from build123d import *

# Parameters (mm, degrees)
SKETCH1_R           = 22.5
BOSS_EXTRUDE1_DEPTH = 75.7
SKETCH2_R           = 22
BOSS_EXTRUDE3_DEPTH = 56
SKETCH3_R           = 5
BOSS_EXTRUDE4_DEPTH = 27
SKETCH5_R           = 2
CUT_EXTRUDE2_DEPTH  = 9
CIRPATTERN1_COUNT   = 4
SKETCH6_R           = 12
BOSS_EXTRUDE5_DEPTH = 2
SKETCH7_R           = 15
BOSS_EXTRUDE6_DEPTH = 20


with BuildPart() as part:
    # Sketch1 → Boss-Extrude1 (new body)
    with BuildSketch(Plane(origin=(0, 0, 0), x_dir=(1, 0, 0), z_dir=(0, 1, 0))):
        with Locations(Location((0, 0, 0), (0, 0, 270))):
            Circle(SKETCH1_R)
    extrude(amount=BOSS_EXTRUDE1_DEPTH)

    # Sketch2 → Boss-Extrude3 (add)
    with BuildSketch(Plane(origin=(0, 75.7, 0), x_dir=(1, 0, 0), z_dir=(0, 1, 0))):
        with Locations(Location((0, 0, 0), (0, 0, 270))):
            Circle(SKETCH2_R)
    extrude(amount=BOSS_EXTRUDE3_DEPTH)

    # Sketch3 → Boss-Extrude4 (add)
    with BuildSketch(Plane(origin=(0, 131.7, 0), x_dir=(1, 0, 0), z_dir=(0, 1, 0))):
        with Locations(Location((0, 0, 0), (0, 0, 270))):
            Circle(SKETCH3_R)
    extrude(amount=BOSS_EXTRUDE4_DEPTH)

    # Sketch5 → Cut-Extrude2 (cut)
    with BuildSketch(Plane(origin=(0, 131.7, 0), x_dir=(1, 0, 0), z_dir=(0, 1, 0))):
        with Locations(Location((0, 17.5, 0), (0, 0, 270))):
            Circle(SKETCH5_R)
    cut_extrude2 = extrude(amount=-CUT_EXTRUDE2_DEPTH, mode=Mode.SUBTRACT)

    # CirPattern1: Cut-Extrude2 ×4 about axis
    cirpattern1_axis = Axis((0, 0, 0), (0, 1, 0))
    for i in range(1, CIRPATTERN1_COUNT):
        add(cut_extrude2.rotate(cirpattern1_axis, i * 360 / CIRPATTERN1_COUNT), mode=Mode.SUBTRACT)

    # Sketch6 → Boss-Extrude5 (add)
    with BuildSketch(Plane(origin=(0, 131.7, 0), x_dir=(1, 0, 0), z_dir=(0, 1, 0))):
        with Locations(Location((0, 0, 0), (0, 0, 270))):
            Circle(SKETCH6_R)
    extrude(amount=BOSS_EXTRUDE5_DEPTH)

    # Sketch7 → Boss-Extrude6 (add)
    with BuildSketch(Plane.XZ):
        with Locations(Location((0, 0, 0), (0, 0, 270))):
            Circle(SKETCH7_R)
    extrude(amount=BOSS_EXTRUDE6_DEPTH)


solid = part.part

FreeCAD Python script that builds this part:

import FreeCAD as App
import Part
import Sketcher

V = App.Vector
Q = App.Units.Quantity

doc = App.newDocument("Part")
body = doc.addObject("PartDesign::Body", "Body")

# Sketch on XZ plane
sketch1 = body.newObject("Sketcher::SketchObject", "Sketch")
sketch1.AttachmentSupport = (doc.getObject("XZ_Plane"), [""])
sketch1.MapMode = "FlatFace"
sketch1.addGeometry(Part.Circle(V(0, 0, 0), V(0, 0, 1), 22), False)
sketch1.addConstraint([
    Sketcher.Constraint("Coincident", 0, 3, -1, 1),
    Sketcher.Constraint("Diameter", 0, Q("45 mm")),
])
pad1 = body.newObject("PartDesign::Pad", "Pad")
pad1.Profile = sketch1
pad1.Length = 75.7
pad1.Reversed = True

# Sketch on XZ plane
sketch2 = body.newObject("Sketcher::SketchObject", "Sketch001")
sketch2.AttachmentSupport = (doc.getObject("XZ_Plane"), [""])
sketch2.MapMode = "FlatFace"
sketch2.AttachmentOffset = App.Placement(V(0, 0, -75.7), App.Rotation())
sketch2.addGeometry(Part.Circle(V(0, 0, 0), V(0, 0, 1), 22), False)
sketch2.addConstraint([
    Sketcher.Constraint("Coincident", 0, 3, -1, 1),
    Sketcher.Constraint("Diameter", 0, Q("44 mm")),
])
pad2 = body.newObject("PartDesign::Pad", "Pad001")
pad2.Profile = sketch2
pad2.Length = 56
pad2.Reversed = True

# Sketch on XZ plane
sketch3 = body.newObject("Sketcher::SketchObject", "Sketch002")
sketch3.AttachmentSupport = (doc.getObject("XZ_Plane"), [""])
sketch3.MapMode = "FlatFace"
sketch3.AttachmentOffset = App.Placement(V(0, 0, -131.7), App.Rotation())
sketch3.addGeometry(Part.Circle(V(0, 0, 0), V(0, 0, 1), 5), False)
sketch3.addConstraint([
    Sketcher.Constraint("Coincident", 0, 3, -1, 1),
    Sketcher.Constraint("Diameter", 0, Q("10 mm")),
])
pad3 = body.newObject("PartDesign::Pad", "Pad002")
pad3.Profile = sketch3
pad3.Length = 27
pad3.Reversed = True

# Sketch on XZ plane
sketch4 = body.newObject("Sketcher::SketchObject", "Sketch003")
sketch4.AttachmentSupport = (doc.getObject("XZ_Plane"), [""])
sketch4.MapMode = "FlatFace"
sketch4.AttachmentOffset = App.Placement(V(0, 0, -131.7), App.Rotation())
sketch4.addGeometry(Part.Circle(V(0, -17.5, 0), V(0, 0, 1), 2), False)
sketch4.addConstraint([
    Sketcher.Constraint("PointOnObject", 0, 3, -2),
    Sketcher.Constraint("Diameter", 0, Q("4 mm")),
    Sketcher.Constraint("DistanceY", 0, 3, -1, 1, Q("17.5 mm")),
])
pocket1 = body.newObject("PartDesign::Pocket", "Pocket")
pocket1.Profile = sketch4
pocket1.Length = 9
pocket1.Reversed = True
doc.recompute()

polarpattern = body.newObject("PartDesign::PolarPattern", "PolarPattern")
polarpattern.Originals = [pocket1]
polarpattern.Axis = (doc.getObject("Y_Axis"), [""])
polarpattern.Angle = 360
polarpattern.Occurrences = 4
body.Tip = polarpattern

# Sketch on XZ plane
sketch5 = body.newObject("Sketcher::SketchObject", "Sketch004")
sketch5.AttachmentSupport = (doc.getObject("XZ_Plane"), [""])
sketch5.MapMode = "FlatFace"
sketch5.AttachmentOffset = App.Placement(V(0, 0, -131.7), App.Rotation())
sketch5.addGeometry(Part.Circle(V(0, 0, 0), V(0, 0, 1), 12), False)
sketch5.addConstraint([
    Sketcher.Constraint("Coincident", 0, 3, -1, 1),
    Sketcher.Constraint("Diameter", 0, Q("24 mm")),
])
pad4 = body.newObject("PartDesign::Pad", "Pad003")
pad4.Profile = sketch5
pad4.Length = 2
pad4.Reversed = True

# Sketch on XZ plane
sketch6 = body.newObject("Sketcher::SketchObject", "Sketch005")
sketch6.AttachmentSupport = (doc.getObject("XZ_Plane"), [""])
sketch6.MapMode = "FlatFace"
sketch6.addGeometry(Part.Circle(V(0, 0, 0), V(0, 0, 1), 15), False)
sketch6.addConstraint([
    Sketcher.Constraint("Coincident", 0, 3, -1, 1),
    Sketcher.Constraint("Diameter", 0, Q("30 mm")),
])
pad5 = body.newObject("PartDesign::Pad", "Pad004")
pad5.Profile = sketch6
pad5.Length = 20

doc.recompute()
